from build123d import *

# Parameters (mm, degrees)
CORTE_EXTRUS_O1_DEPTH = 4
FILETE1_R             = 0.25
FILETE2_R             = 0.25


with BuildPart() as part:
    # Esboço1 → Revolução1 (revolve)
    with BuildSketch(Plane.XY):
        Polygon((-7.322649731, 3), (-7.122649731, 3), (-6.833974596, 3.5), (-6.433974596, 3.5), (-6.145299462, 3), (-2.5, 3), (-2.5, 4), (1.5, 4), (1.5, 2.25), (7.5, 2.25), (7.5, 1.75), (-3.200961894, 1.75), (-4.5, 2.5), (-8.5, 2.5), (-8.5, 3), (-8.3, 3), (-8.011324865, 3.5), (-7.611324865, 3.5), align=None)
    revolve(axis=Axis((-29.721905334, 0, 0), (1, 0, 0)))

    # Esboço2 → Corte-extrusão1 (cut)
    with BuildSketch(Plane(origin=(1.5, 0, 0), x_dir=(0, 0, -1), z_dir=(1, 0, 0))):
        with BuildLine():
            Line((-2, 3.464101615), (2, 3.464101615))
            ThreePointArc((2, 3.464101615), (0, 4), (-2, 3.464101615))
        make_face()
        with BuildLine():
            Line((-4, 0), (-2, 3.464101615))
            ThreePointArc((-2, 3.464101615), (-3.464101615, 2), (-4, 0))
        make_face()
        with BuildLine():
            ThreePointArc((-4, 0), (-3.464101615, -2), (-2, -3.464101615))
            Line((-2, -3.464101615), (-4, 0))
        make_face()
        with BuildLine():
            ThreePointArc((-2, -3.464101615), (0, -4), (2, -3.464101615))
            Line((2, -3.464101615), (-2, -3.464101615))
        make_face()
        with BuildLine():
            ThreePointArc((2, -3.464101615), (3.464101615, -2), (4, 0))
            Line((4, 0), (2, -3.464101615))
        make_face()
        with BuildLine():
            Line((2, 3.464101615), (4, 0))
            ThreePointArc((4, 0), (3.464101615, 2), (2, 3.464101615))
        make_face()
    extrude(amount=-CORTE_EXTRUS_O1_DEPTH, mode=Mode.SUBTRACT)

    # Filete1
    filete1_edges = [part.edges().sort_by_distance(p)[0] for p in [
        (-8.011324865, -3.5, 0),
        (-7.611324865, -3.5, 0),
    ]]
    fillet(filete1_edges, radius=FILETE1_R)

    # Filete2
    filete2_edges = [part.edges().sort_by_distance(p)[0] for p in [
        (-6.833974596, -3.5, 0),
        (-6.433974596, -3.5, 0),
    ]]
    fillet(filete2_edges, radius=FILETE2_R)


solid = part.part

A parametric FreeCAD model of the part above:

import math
import FreeCAD as App
import Part
import Sketcher
from FreeCAD import Vector
Q = App.Units.Quantity


def edges_at(feature, points):
    """Names of the edges that pass closest to the given points."""
    edges = feature.Shape.Edges
    near = lambda p: min(range(len(edges)), key=lambda i: edges[i].distToShape(Part.Vertex(*p))[0])
    return sorted({f"Edge{near(p) + 1}" for p in points})

doc = App.newDocument("Part")
params = doc.addObject("Spreadsheet::Sheet", "Params")
for row, (alias, value) in enumerate([
    ("sketch1_width", "4 mm"),
    ("sketch1_width2", "6 mm"),
    ("sketch1_height", "1 mm"),
    ("sketch1_width3", "0.2 mm"),
    ("sketch1_width4", "0.4 mm"),
    ("revolution_angle", "360 deg"),
    ("sketch2_radius", "4 mm"),
    ("sketch2_height", "4 mm"),
    ("pocket1_length", "4 mm"),
    ("fillet_radius", "0.25 mm"),
    ("fillet2_radius", "0.25 mm"),
], start=1):
    params.set(f"A{row}", alias)
    params.set(f"B{row}", "=" + value)
    params.setAlias(f"B{row}", alias)

body = doc.addObject("PartDesign::Body", "Body")

sketch1 = body.newObject("Sketcher::SketchObject", "Sketch")
sketch1.AttachmentSupport = (doc.getObject("XY_Plane"), [""])
sketch1.MapMode = "FlatFace"
sketch1.addGeometry([
    Part.LineSegment(Vector(-7.12, 3, 0), Vector(-7.32, 3, 0)),
    Part.LineSegment(Vector(-7.32, 3, 0), Vector(-7.61, 3.5, 0)),
    Part.LineSegment(Vector(-7.61, 3.5, 0), Vector(-8.01, 3.5, 0)),
    Part.LineSegment(Vector(-8.01, 3.5, 0), Vector(-8.3, 3, 0)),
    Part.LineSegment(Vector(-8.3, 3, 0), Vector(-8.5, 3, 0)),
    Part.LineSegment(Vector(-8.5, 3, 0), Vector(-8.5, 2.5, 0)),
    Part.LineSegment(Vector(-8.5, 2.5, 0), Vector(-4.5, 2.5, 0)),
    Part.LineSegment(Vector(-4.5, 2.5, 0), Vector(-3.2, 1.75, 0)),
    Part.LineSegment(Vector(-3.2, 1.75, 0), Vector(7.5, 1.75, 0)),
    Part.LineSegment(Vector(7.5, 1.75, 0), Vector(7.5, 2.25, 0)),
    Part.LineSegment(Vector(7.5, 2.25, 0), Vector(1.5, 2.25, 0)),
    Part.LineSegment(Vector(1.5, 2.25, 0), Vector(1.5, 4, 0)),
    Part.LineSegment(Vector(1.5, 4, 0), Vector(-2.5, 4, 0)),
    Part.LineSegment(Vector(-2.5, 4, 0), Vector(-2.5, 3, 0)),
    Part.LineSegment(Vector(-2.5, 3, 0), Vector(-6.15, 3, 0)),
    Part.LineSegment(Vector(-6.15, 3, 0), Vector(-6.43, 3.5, 0)),
    Part.LineSegment(Vector(-6.43, 3.5, 0), Vector(-6.83, 3.5, 0)),
    Part.LineSegment(Vector(-6.83, 3.5, 0), Vector(-7.12, 3, 0)),
], False)
sketch1.addConstraint([
    Sketcher.Constraint("Coincident", 0, 2, 1, 1),
    Sketcher.Constraint("Coincident", 1, 2, 2, 1),
    Sketcher.Constraint("Coincident", 2, 2, 3, 1),
    Sketcher.Constraint("Coincident", 3, 2, 4, 1),
    Sketcher.Constraint("Coincident", 4, 2, 5, 1),
    Sketcher.Constraint("Coincident", 5, 2, 6, 1),
    Sketcher.Constraint("Coincident", 6, 2, 7, 1),
    Sketcher.Constraint("Coincident", 7, 2, 8, 1),
    Sketcher.Constraint("Coincident", 8, 2, 9, 1),
    Sketcher.Constraint("Coincident", 9, 2, 10, 1),
    Sketcher.Constraint("Coincident", 10, 2, 11, 1),
    Sketcher.Constraint("Coincident", 11, 2, 12, 1),
    Sketcher.Constraint("Coincident", 12, 2, 13, 1),
    Sketcher.Constraint("Coincident", 13, 2, 14, 1),
    Sketcher.Constraint("Coincident", 14, 2, 15, 1),
    Sketcher.Constraint("Coincident", 15, 2, 16, 1),
    Sketcher.Constraint("Coincident", 16, 2, 17, 1),
    Sketcher.Constraint("Coincident", 17, 2, 0, 1),
    Sketcher.Constraint("Horizontal", 0),
    Sketcher.Constraint("Horizontal", 2),
    Sketcher.Constraint("Horizontal", 4),
    Sketcher.Constraint("Vertical", 5),
    Sketcher.Constraint("Horizontal", 6),
    Sketcher.Constraint("Horizontal", 8),
    Sketcher.Constraint("Vertical", 9),
    Sketcher.Constraint("Horizontal", 10),
    Sketcher.Constraint("Vertical", 11),
    Sketcher.Constraint("Horizontal", 12),
    Sketcher.Constraint("Vertical", 13),
    Sketcher.Constraint("Horizontal", 14),
    Sketcher.Constraint("Horizontal", 16),
    Sketcher.Constraint("Perpendicular", 3, 7),
    Sketcher.Constraint("Parallel", 1, 15),
    Sketcher.Constraint("Perpendicular", 7, 17),
    Sketcher.Constraint("Horizontal", 0, 2, 3, 2),
    Sketcher.Constraint("Horizontal", 4, 2, 13, 2),
    Sketcher.Constraint("Horizontal", 2, 2, 15, 2),
    Sketcher.Constraint("Equal", 0, 4),
    Sketcher.Constraint("Equal", 6, 12),
    Sketcher.Constraint("Equal", 2, 16),
    Sketcher.Constraint("Equal", 5, 9),
    Sketcher.Constraint("Equal", 1, 3),
    Sketcher.Constraint("DistanceX", 6, 1, 6, 2, Q("4 mm")),
    Sketcher.Constraint("DistanceX", 10, 2, 10, 1, Q("6 mm")),
    Sketcher.Constraint("DistanceY", 13, 2, 13, 1, Q("1 mm")),
    Sketcher.Constraint("Angle", 1, Q("120 deg")),
    Sketcher.Constraint("DistanceX", 0, 2, 0, 1, Q("0.2 mm")),
    Sketcher.Constraint("DistanceX", 2, 2, 2, 1, Q("0.4 mm")),
    Sketcher.Constraint("DistanceY", 5, 2, 5, 1, Q("0.5 mm")),
    Sketcher.Constraint("DistanceY", -1, 1, 0, 2, Q("3 mm")),
    Sketcher.Constraint("DistanceY", 5, 2, 2, 2, Q("1 mm")),
    Sketcher.Constraint("DistanceX", 6, 2, 8, 2, Q("12 mm")),
    Sketcher.Constraint("Distance", 7, Q("1.5 mm")),
    Sketcher.Constraint("DistanceX", 3, 2, -1, 1, Q("8.3 mm")),
])
sketch1.setExpression("Constraints[42]", "Params.sketch1_width")
sketch1.setExpression("Constraints[43]", "Params.sketch1_width2")
sketch1.setExpression("Constraints[44]", "Params.sketch1_height")
sketch1.setExpression("Constraints[46]", "Params.sketch1_width3")
sketch1.setExpression("Constraints[47]", "Params.sketch1_width4")
revolution = body.newObject("PartDesign::Revolution", "Revolution")
revolution.Profile = sketch1
revolution.ReferenceAxis = (sketch1, ["H_Axis"])
revolution.setExpression("Angle", "Params.revolution_angle")

sketch2 = body.newObject("Sketcher::SketchObject", "Sketch001")
sketch2.AttachmentSupport = (doc.getObject("YZ_Plane"), [""])
sketch2.MapMode = "FlatFace"
sketch2.AttachmentOffset = App.Placement(Vector(0, 0, 1.5), App.Rotation())
sketch2.addGeometry([
    Part.LineSegment(Vector(3.5, 2, 0), Vector(3.5, -2, 0)),
    Part.ArcOfCircle(Part.Circle(Vector(0, 0, 0), Vector(0, 0, 1), 4), math.radians(-30), math.radians(30)),
    Part.LineSegment(Vector(0, 4, 0), Vector(3.5, 2, 0)),
    Part.ArcOfCircle(Part.Circle(Vector(0, 0, 0), Vector(0, 0, 1), 4), math.radians(30), math.radians(90)),
    Part.ArcOfCircle(Part.Circle(Vector(0, 0, 0), Vector(0, 0, 1), 4), math.radians(90), math.radians(150)),
    Part.LineSegment(Vector(-3.5, 2, 0), Vector(0, 4, 0)),
    Part.ArcOfCircle(Part.Circle(Vector(0, 0, 0), Vector(0, 0, 1), 4), math.radians(150), math.radians(210)),
    Part.LineSegment(Vector(-3.5, -2, 0), Vector(-3.5, 2, 0)),
    Part.ArcOfCircle(Part.Circle(Vector(0, 0, 0), Vector(0, 0, 1), 4), math.radians(-150), math.radians(-90)),
    Part.LineSegment(Vector(0, -4, 0), Vector(-3.5, -2, 0)),
    Part.LineSegment(Vector(3.5, -2, 0), Vector(0, -4, 0)),
    Part.ArcOfCircle(Part.Circle(Vector(0, 0, 0), Vector(0, 0, 1), 4), math.radians(-90), math.radians(-30)),
], False)
sketch2.addConstraint([
    Sketcher.Constraint("Coincident", 0, 1, 1, 2),
    Sketcher.Constraint("Coincident", 1, 1, 0, 2),
    Sketcher.Constraint("Coincident", 2, 1, 3, 2),
    Sketcher.Constraint("Coincident", 3, 1, 2, 2),
    Sketcher.Constraint("Coincident", 4, 1, 5, 2),
    Sketcher.Constraint("Coincident", 5, 1, 4, 2),
    Sketcher.Constraint("Coincident", 6, 1, 7, 2),
    Sketcher.Constraint("Coincident", 7, 1, 6, 2),
    Sketcher.Constraint("Coincident", 8, 1, 9, 2),
    Sketcher.Constraint("Coincident", 9, 1, 8, 2),
    Sketcher.Constraint("Coincident", 10, 1, 11, 2),
    Sketcher.Constraint("Coincident", 11, 1, 10, 2),
    Sketcher.Constraint("Vertical", 0),
    Sketcher.Constraint("Vertical", 7),
    Sketcher.Constraint("Coincident", 1, 3, -1, 1),
    Sketcher.Constraint("Coincident", 3, 3, -1, 1),
    Sketcher.Constraint("Coincident", 4, 3, -1, 1),
    Sketcher.Constraint("Coincident", 6, 3, -1, 1),
    Sketcher.Constraint("Coincident", 8, 3, -1, 1),
    Sketcher.Constraint("Coincident", 11, 3, -1, 1),
    Sketcher.Constraint("Coincident", 3, 1, 0, 1),
    Sketcher.Constraint("Coincident", 4, 1, 2, 1),
    Sketcher.Constraint("Coincident", 6, 1, 5, 1),
    Sketcher.Constraint("Coincident", 8, 1, 7, 1),
    Sketcher.Constraint("Coincident", 10, 1, 1, 1),
    Sketcher.Constraint("PointOnObject", 2, 1, -2),
    Sketcher.Constraint("PointOnObject", 9, 1, -2),
    Sketcher.Constraint("PointOnObject", 11, 1, -2),
    Sketcher.Constraint("Parallel", 2, 9),
    Sketcher.Constraint("Radius", 1, Q("4 mm")),
    Sketcher.Constraint("DistanceY", 0, 2, 0, 1, Q("4 mm")),
])
sketch2.setExpression("Constraints[29]", "Params.sketch2_radius")
sketch2.setExpression("Constraints[30]", "Params.sketch2_height")
pocket1 = body.newObject("PartDesign::Pocket", "Pocket")
pocket1.Profile = sketch2
pocket1.setExpression("Length", "Params.pocket1_length")
doc.recompute()

fillet = body.newObject("PartDesign::Fillet", "Fillet")
fillet.Base = (pocket1, edges_at(pocket1, [(-8.011, -3.5, 0), (-7.611, -3.5, 0)]))
fillet.setExpression("Radius", "Params.fillet_radius")
doc.recompute()

fillet2 = body.newObject("PartDesign::Fillet", "Fillet001")
fillet2.Base = (fillet, edges_at(fillet, [(-6.834, -3.5, 0), (-6.434, -3.5, 0)]))
fillet2.setExpression("Radius", "Params.fillet2_radius")

doc.recompute()
